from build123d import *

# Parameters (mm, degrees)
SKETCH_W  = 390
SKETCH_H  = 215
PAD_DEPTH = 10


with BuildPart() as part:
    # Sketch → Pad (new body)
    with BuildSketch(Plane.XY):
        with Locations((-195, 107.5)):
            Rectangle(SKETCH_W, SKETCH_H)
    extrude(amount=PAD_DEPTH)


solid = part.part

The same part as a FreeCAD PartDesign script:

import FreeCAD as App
import Part
import Sketcher

V = App.Vector
Q = App.Units.Quantity


def add_polygon(sketch, points):
    """Adds a closed chain of lines whose ends are joined by coincident constraints."""
    first, n = sketch.GeometryCount, len(points)
    for a, b in zip(points, points[1:] + points[:1]):
        sketch.addGeometry(Part.LineSegment(App.Vector(*a, 0), App.Vector(*b, 0)), False)
    for i in range(n):
        sketch.addConstraint(Sketcher.Constraint("Coincident", first + i, 2, first + (i + 1) % n, 1))

doc = App.newDocument("Part")
body = doc.addObject("PartDesign::Body", "Body")

# Sketch on XY plane
sketch1 = doc.addObject("Sketcher::SketchObject", "Sketch")
body.addObject(sketch1)
sketch1.AttachmentSupport = (doc.XY_Plane, [""])
sketch1.MapMode = "FlatFace"
add_polygon(sketch1, [(-390, 215), (-390, 0), (0, 0), (0, 215)])  # lines 0-3
sketch1.addConstraint(Sketcher.Constraint("Vertical", 0))
sketch1.addConstraint(Sketcher.Constraint("Horizontal", 1))
sketch1.addConstraint(Sketcher.Constraint("Vertical", 2))
sketch1.addConstraint(Sketcher.Constraint("Horizontal", 3))
sketch1.addConstraint(Sketcher.Constraint("Coincident", 1, 2, -1, 1))
sketch1.addConstraint(Sketcher.Constraint("DistanceX", 1, 1, 1, 2, Q("390 mm")))
sketch1.addConstraint(Sketcher.Constraint("DistanceY", 0, 2, 0, 1, Q("215 mm")))
pad1 = doc.addObject("PartDesign::Pad", "Pad")
body.addObject(pad1)
pad1.Profile = sketch1
pad1.Length = 10

doc.recompute()
